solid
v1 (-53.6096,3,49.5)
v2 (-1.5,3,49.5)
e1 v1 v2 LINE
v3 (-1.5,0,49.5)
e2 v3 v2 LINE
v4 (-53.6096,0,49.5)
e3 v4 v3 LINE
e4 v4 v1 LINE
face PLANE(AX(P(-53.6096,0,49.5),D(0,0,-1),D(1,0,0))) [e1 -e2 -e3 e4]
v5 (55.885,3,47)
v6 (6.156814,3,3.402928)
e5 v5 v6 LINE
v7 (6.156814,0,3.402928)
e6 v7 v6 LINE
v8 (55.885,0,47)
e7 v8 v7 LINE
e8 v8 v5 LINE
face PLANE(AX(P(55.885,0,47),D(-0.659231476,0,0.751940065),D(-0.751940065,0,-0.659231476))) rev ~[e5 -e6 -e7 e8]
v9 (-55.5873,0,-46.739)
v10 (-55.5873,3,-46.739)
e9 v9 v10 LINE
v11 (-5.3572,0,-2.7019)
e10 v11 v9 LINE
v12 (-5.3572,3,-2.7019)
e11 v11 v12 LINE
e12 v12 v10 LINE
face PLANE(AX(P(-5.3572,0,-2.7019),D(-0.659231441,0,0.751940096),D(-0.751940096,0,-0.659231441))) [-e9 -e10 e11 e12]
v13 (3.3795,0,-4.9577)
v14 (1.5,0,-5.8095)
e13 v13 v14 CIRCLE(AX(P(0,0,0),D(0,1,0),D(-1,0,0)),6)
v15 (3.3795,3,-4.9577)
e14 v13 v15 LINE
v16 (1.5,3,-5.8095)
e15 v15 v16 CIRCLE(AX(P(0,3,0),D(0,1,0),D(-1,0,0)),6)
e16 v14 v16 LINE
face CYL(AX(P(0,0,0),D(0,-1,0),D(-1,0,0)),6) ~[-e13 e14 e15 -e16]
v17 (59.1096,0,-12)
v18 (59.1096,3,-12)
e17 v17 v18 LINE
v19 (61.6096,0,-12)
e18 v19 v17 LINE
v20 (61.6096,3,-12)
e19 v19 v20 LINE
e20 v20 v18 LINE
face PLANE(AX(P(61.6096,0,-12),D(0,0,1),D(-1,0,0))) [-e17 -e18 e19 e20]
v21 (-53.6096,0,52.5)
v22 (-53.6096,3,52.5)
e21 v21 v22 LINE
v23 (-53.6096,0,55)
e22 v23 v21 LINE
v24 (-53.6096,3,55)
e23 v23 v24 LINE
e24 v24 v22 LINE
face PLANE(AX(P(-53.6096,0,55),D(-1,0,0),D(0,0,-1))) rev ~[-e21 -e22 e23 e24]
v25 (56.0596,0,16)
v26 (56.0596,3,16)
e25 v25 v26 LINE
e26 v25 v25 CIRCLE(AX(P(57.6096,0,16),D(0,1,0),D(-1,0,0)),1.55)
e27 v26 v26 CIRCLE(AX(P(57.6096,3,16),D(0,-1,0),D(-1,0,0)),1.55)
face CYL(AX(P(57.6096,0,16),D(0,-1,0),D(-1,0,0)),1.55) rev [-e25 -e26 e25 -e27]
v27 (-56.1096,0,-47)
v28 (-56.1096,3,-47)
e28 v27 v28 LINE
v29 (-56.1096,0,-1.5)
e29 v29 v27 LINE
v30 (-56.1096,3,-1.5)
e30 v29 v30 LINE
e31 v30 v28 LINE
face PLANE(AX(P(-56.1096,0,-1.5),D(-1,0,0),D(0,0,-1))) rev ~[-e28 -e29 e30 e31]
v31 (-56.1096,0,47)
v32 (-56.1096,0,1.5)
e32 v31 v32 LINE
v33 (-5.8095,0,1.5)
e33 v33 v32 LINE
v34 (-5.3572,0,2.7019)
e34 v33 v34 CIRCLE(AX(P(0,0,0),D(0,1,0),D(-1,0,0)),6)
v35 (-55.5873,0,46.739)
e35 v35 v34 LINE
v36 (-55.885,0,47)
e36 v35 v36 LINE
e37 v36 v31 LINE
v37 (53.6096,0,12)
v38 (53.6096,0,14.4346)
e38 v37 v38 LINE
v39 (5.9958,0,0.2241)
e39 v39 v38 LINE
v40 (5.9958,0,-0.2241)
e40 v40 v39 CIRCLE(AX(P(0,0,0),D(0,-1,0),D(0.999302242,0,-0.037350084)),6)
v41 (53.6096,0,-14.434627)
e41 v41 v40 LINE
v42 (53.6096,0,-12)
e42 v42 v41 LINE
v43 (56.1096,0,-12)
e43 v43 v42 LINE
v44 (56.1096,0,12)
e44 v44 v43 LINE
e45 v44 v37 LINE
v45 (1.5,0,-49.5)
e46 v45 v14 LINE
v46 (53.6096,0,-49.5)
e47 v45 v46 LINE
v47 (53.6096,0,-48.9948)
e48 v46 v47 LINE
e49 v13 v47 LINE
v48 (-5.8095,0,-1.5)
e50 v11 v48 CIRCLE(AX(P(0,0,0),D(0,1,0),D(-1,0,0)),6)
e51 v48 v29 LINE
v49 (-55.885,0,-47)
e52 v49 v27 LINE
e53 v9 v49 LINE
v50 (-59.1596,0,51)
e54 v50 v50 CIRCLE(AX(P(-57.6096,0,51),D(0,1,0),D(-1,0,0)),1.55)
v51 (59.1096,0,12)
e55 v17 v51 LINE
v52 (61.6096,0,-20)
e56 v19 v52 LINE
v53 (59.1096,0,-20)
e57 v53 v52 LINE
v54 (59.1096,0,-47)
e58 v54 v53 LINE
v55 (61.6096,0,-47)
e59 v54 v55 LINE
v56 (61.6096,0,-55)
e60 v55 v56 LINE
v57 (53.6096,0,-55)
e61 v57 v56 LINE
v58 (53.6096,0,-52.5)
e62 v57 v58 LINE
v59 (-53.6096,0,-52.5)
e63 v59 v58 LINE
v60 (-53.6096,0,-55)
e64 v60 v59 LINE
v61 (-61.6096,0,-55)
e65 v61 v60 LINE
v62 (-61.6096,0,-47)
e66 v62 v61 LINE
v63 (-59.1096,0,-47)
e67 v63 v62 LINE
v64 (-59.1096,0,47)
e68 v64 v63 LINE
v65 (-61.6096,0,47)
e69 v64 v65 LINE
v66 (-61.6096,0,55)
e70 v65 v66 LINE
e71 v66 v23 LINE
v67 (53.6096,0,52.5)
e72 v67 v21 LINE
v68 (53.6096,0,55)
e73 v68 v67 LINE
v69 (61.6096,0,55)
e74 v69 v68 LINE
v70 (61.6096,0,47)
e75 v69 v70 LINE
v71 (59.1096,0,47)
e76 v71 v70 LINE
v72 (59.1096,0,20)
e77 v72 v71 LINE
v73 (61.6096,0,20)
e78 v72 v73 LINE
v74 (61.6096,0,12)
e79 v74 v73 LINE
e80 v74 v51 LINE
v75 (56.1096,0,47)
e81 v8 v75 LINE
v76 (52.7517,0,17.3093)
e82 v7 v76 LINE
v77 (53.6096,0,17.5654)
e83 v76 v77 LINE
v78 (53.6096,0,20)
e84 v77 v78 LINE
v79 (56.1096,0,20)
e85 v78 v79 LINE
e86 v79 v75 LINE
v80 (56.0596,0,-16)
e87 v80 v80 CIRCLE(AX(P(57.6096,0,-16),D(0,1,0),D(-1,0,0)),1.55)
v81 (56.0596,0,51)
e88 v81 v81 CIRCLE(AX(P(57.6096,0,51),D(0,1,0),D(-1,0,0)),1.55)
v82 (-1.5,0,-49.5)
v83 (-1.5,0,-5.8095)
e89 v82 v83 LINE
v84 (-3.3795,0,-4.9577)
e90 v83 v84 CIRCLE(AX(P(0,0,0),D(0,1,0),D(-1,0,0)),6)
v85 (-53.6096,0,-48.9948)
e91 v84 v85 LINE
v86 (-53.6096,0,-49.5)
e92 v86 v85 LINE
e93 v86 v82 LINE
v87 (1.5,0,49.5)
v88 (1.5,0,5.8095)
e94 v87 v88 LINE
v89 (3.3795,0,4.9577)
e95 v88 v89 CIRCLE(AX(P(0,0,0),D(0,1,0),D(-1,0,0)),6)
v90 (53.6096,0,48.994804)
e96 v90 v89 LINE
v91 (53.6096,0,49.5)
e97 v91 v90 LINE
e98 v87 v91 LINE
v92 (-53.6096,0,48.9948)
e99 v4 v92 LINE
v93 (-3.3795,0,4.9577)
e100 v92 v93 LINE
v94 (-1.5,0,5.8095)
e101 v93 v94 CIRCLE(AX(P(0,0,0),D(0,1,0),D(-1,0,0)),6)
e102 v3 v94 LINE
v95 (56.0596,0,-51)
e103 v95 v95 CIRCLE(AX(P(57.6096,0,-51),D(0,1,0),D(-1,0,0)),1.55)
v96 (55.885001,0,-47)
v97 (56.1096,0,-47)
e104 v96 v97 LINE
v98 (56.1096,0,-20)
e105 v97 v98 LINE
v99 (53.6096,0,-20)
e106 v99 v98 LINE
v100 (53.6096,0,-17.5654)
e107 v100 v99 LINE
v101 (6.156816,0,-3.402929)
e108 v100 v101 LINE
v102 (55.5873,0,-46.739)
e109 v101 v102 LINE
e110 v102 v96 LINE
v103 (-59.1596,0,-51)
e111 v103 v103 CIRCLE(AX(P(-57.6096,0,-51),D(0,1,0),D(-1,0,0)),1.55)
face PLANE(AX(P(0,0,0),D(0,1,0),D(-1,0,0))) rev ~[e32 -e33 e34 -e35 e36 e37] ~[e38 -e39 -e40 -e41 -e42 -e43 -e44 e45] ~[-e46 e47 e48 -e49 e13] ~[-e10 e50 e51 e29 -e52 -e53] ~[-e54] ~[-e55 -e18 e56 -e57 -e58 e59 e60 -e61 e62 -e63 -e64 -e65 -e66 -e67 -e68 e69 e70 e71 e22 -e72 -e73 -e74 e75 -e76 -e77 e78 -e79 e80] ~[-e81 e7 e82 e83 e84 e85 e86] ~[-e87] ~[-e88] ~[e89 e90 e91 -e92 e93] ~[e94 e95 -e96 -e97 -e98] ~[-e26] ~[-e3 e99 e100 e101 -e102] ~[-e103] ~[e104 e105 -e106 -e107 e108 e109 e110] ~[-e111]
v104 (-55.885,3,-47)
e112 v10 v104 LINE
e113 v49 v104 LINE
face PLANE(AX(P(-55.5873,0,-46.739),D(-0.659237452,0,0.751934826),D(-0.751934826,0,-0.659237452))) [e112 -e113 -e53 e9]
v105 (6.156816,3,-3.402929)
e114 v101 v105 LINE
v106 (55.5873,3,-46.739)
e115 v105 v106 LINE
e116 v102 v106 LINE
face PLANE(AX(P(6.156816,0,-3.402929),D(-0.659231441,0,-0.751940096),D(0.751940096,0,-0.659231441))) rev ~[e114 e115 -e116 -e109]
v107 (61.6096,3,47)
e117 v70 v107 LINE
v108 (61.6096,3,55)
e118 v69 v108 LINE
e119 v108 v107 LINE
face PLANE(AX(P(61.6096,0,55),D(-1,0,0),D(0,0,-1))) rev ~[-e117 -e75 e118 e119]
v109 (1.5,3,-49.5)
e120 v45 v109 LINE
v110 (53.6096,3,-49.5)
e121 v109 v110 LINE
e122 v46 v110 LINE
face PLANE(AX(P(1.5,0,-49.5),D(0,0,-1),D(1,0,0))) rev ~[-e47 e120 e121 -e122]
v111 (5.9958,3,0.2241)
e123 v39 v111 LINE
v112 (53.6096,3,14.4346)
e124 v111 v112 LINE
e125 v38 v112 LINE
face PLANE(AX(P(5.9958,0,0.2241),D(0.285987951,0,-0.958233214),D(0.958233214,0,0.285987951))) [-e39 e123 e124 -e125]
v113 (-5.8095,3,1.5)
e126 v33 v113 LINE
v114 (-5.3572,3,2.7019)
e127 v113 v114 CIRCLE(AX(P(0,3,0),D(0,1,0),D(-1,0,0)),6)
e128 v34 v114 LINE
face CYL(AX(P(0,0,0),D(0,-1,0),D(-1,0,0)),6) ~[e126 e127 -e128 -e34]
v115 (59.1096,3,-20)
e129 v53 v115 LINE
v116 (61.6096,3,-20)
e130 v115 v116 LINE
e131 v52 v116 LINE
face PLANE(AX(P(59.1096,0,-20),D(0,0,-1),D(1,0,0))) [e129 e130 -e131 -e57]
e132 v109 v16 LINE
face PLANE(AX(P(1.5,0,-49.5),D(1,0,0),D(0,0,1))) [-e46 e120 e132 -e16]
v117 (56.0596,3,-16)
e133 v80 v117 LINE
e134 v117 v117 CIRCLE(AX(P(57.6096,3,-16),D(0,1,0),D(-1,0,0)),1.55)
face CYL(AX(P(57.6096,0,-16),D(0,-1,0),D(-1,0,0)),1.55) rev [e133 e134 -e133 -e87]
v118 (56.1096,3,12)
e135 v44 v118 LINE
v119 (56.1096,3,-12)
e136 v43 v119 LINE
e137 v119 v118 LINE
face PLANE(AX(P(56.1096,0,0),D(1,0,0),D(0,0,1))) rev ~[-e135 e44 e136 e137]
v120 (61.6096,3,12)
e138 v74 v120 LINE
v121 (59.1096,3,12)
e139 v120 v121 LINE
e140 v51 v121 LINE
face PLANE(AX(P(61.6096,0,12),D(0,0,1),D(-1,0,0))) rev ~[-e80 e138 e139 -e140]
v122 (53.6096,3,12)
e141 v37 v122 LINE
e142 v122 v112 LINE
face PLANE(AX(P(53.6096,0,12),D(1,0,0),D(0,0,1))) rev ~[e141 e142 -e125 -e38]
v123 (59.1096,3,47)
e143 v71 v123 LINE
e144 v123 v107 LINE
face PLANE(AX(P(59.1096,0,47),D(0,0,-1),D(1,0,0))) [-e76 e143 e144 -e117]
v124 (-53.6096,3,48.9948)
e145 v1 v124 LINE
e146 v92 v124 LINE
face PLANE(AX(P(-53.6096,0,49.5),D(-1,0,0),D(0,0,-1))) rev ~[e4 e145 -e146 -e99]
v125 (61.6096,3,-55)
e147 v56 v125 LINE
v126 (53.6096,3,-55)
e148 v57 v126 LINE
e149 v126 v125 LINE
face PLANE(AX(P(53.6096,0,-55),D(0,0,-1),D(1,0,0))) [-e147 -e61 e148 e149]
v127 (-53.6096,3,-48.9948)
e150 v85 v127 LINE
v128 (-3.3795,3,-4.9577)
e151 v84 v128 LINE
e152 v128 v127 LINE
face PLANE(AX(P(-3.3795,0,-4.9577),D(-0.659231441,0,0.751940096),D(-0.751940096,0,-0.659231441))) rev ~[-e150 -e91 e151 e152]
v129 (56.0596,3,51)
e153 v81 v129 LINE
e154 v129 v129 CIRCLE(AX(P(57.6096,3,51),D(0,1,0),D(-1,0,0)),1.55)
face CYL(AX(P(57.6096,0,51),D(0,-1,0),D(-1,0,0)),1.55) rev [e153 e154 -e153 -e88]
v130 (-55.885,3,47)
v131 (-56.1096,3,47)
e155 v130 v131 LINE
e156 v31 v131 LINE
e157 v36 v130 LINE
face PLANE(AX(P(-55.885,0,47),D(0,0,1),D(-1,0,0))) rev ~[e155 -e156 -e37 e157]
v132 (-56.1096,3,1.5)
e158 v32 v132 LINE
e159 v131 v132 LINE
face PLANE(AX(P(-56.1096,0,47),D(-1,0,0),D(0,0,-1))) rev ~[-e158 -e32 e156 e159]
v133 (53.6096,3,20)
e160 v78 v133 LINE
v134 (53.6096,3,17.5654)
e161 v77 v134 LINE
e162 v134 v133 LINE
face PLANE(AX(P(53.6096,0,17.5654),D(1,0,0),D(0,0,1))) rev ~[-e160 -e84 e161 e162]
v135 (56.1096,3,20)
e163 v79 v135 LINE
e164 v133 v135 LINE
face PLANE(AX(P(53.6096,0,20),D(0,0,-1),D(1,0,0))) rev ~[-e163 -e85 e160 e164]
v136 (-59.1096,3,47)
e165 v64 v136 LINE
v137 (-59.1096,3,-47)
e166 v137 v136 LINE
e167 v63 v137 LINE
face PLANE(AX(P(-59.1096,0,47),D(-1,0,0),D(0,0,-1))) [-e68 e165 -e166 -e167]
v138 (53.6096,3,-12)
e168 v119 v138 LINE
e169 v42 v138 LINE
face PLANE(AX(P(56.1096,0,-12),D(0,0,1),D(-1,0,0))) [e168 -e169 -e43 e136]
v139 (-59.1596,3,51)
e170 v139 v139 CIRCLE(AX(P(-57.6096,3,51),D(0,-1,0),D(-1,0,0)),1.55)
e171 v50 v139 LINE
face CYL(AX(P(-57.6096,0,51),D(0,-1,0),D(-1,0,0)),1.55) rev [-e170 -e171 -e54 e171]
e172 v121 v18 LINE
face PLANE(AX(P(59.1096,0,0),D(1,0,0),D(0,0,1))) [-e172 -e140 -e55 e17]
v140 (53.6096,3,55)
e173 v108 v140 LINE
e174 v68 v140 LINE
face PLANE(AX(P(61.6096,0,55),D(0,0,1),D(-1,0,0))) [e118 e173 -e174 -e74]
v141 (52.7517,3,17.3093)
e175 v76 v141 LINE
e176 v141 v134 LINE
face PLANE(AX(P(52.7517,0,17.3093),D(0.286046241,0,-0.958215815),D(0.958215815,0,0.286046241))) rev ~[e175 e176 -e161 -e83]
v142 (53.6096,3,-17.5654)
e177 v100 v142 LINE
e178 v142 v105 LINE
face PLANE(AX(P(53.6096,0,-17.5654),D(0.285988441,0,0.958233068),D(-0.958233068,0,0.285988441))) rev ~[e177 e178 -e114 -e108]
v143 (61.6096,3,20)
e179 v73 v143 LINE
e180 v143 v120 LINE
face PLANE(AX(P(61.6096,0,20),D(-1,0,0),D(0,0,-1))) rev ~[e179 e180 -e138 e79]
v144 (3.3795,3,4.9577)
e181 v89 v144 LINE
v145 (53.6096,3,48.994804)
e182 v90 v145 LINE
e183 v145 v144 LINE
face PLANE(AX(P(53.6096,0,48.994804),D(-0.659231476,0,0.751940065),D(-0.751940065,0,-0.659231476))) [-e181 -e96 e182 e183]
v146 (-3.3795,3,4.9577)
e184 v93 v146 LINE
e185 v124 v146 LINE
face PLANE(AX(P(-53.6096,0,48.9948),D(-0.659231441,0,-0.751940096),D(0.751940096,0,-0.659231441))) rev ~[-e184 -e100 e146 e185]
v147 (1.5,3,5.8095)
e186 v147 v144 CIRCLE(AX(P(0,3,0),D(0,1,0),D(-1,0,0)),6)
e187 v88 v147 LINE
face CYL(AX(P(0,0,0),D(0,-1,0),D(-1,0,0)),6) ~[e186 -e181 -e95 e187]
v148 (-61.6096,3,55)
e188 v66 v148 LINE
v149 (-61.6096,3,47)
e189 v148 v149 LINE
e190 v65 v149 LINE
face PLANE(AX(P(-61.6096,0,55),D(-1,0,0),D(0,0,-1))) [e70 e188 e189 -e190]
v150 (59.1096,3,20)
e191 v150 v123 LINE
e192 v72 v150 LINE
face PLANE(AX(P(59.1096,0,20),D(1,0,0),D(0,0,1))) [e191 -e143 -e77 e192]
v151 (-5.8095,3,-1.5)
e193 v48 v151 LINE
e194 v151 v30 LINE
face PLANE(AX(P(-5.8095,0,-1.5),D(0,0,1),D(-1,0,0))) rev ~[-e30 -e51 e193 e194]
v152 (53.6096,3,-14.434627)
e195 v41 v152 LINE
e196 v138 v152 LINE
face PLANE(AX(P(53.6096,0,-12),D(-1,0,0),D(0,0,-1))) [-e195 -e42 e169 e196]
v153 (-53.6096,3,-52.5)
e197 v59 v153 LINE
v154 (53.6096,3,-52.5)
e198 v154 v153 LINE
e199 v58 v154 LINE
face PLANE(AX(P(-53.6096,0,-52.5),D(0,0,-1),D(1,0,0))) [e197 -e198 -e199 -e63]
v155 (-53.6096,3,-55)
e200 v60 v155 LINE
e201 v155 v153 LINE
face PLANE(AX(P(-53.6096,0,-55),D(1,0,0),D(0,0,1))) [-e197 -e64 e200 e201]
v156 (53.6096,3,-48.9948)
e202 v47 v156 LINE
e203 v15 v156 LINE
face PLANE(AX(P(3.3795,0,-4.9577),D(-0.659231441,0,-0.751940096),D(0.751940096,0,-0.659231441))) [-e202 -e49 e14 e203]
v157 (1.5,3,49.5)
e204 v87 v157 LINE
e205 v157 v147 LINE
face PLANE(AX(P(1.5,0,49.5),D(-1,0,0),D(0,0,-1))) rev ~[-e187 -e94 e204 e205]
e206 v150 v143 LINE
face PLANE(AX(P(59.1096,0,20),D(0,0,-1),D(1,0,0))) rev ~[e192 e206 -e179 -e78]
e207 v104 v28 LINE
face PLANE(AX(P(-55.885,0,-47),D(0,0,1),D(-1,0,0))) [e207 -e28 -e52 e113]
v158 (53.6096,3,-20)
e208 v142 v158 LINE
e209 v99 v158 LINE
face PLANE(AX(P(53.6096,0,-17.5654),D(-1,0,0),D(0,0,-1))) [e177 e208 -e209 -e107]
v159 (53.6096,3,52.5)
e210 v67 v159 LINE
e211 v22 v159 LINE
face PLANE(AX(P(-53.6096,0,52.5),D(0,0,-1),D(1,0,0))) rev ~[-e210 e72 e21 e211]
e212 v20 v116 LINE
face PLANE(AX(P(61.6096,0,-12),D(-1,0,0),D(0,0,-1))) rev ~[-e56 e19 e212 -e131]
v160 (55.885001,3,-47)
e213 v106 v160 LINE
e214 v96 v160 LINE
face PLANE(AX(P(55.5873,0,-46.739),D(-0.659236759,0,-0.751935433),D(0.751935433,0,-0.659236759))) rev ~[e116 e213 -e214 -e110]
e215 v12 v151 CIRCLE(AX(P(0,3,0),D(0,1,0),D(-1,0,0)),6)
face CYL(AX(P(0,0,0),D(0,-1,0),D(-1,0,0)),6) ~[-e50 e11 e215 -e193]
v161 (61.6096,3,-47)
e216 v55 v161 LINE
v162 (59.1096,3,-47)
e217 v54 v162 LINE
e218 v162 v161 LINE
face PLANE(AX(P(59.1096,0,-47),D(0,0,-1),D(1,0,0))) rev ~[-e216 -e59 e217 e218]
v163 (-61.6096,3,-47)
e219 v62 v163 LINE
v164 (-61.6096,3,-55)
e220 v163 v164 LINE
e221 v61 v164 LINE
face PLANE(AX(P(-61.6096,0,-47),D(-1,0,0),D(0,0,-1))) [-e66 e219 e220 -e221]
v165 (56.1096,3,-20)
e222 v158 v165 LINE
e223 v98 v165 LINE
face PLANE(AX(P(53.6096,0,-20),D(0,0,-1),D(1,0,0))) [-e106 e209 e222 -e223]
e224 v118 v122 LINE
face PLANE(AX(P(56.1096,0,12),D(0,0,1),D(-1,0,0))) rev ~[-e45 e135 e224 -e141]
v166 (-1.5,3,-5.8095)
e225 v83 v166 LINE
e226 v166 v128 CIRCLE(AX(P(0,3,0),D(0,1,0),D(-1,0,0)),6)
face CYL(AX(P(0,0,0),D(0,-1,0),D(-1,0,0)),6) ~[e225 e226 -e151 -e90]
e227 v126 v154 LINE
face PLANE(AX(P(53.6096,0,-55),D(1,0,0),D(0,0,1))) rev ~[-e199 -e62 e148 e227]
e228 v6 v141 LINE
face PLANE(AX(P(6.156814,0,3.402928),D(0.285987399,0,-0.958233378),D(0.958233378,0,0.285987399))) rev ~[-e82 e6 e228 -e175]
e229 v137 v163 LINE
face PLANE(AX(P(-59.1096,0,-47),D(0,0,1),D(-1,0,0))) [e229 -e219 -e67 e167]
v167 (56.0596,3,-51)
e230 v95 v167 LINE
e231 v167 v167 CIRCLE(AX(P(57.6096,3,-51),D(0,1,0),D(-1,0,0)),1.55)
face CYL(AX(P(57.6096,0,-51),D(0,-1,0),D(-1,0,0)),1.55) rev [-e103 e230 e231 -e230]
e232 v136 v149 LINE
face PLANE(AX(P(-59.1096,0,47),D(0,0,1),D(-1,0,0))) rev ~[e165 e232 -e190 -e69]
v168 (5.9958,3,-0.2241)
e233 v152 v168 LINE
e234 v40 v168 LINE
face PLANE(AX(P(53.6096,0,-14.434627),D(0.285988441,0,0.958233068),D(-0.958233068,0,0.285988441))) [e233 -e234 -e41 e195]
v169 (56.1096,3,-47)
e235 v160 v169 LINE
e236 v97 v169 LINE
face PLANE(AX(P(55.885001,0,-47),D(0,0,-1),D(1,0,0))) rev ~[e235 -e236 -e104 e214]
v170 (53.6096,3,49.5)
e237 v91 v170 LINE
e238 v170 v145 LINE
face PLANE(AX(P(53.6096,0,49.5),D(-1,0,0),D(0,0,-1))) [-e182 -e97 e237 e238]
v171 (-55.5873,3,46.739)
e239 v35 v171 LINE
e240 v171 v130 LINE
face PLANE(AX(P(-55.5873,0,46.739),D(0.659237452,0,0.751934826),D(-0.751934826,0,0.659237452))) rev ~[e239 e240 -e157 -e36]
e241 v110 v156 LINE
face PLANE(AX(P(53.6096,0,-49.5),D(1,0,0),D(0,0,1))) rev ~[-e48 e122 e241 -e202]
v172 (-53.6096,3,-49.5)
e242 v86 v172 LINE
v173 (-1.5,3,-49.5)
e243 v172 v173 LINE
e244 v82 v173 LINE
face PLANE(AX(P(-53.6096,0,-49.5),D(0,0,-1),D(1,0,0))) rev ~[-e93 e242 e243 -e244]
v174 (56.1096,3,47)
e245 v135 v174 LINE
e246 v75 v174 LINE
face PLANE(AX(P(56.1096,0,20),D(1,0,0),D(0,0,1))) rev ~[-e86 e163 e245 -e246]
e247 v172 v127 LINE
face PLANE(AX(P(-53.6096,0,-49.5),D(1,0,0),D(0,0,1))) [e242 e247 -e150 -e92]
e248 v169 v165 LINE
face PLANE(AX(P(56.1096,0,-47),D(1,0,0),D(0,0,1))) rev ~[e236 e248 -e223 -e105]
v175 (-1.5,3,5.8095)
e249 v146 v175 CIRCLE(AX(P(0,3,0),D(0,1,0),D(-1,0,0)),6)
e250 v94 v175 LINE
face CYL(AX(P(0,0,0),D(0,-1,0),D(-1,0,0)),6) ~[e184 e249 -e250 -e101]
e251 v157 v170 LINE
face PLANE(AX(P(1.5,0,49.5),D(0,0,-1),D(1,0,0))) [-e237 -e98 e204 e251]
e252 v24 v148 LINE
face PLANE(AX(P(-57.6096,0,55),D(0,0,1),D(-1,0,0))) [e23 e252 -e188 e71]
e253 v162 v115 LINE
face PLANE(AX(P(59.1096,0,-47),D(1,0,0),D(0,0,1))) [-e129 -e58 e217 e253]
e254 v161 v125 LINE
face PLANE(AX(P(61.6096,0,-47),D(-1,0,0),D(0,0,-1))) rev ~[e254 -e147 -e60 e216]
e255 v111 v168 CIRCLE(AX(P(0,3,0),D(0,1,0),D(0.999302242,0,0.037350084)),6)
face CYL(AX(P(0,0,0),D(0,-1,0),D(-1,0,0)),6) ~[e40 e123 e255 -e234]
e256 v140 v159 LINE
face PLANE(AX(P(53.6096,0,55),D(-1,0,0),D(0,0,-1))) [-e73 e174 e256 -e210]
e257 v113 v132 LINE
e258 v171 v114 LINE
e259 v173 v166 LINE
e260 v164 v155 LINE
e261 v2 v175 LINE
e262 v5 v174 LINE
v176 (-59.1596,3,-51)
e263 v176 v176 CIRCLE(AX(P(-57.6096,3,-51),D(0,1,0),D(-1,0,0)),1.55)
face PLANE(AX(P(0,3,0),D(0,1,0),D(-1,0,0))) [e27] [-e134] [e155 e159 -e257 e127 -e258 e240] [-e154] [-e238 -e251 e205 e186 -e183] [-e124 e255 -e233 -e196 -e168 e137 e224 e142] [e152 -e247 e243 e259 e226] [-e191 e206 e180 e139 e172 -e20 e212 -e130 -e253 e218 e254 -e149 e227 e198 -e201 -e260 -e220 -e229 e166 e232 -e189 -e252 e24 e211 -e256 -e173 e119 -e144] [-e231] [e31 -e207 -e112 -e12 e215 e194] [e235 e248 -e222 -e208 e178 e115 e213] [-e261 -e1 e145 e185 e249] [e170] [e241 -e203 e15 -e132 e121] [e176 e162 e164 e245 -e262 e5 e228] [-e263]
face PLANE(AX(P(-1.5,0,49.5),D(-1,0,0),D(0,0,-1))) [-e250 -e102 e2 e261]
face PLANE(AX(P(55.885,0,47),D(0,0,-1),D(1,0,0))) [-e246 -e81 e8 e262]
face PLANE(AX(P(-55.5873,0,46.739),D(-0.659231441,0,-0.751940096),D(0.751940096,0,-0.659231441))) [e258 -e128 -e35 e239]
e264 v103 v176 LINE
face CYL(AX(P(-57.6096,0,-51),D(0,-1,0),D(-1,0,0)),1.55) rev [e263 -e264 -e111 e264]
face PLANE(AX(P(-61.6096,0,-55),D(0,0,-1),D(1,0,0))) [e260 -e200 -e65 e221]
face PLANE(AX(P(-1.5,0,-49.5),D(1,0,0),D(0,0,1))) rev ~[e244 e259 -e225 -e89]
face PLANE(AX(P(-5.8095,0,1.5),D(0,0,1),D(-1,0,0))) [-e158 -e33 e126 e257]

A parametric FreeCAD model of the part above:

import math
import FreeCAD as App
import Part
import Sketcher
Q = App.Units.Quantity

doc = App.newDocument("Part")
body = doc.addObject("PartDesign::Body", "Body")

# Sketch on XZ plane
sketch1 = body.newObject("Sketcher::SketchObject", "Sketch")
sketch1.AttachmentSupport = (doc.getObject("XZ_Plane"), [""])
sketch1.MapMode = "FlatFace"
sketch1.addGeometry([
    Part.LineSegment(App.Vector(-61.61, 55, 0), App.Vector(-53.61, 55, 0)),  # 0
    Part.LineSegment(App.Vector(-53.61, 55, 0), App.Vector(-53.61, 52.5, 0)),  # 1
    Part.LineSegment(App.Vector(-53.61, 52.5, 0), App.Vector(53.61, 52.5, 0)),  # 2
    Part.LineSegment(App.Vector(53.61, 52.5, 0), App.Vector(53.61, 55, 0)),  # 3
    Part.LineSegment(App.Vector(53.61, 55, 0), App.Vector(61.61, 55, 0)),  # 4
    Part.LineSegment(App.Vector(61.61, 55, 0), App.Vector(61.61, 47, 0)),  # 5
    Part.LineSegment(App.Vector(61.61, 47, 0), App.Vector(59.11, 47, 0)),  # 6
    Part.LineSegment(App.Vector(59.11, 47, 0), App.Vector(59.11, 20, 0)),  # 7
    Part.LineSegment(App.Vector(59.11, 20, 0), App.Vector(61.61, 20, 0)),  # 8
    Part.LineSegment(App.Vector(61.61, 20, 0), App.Vector(61.61, 12, 0)),  # 9
    Part.LineSegment(App.Vector(61.61, 12, 0), App.Vector(59.11, 12, 0)),  # 10
    Part.LineSegment(App.Vector(59.11, 12, 0), App.Vector(59.11, -12, 0)),  # 11
    Part.LineSegment(App.Vector(59.11, -12, 0), App.Vector(61.61, -12, 0)),  # 12
    Part.LineSegment(App.Vector(61.61, -12, 0), App.Vector(61.61, -20, 0)),  # 13
    Part.LineSegment(App.Vector(61.61, -20, 0), App.Vector(59.11, -20, 0)),  # 14
    Part.LineSegment(App.Vector(59.11, -20, 0), App.Vector(59.11, -47, 0)),  # 15
    Part.LineSegment(App.Vector(59.11, -47, 0), App.Vector(61.61, -47, 0)),  # 16
    Part.LineSegment(App.Vector(61.61, -47, 0), App.Vector(61.61, -55, 0)),  # 17
    Part.LineSegment(App.Vector(61.61, -55, 0), App.Vector(53.61, -55, 0)),  # 18
    Part.LineSegment(App.Vector(53.61, -55, 0), App.Vector(53.61, -52.5, 0)),  # 19
    Part.LineSegment(App.Vector(53.61, -52.5, 0), App.Vector(-53.61, -52.5, 0)),  # 20
    Part.LineSegment(App.Vector(-53.61, -52.5, 0), App.Vector(-53.61, -55, 0)),  # 21
    Part.LineSegment(App.Vector(-53.61, -55, 0), App.Vector(-61.61, -55, 0)),  # 22
    Part.LineSegment(App.Vector(-61.61, -55, 0), App.Vector(-61.61, -47, 0)),  # 23
    Part.LineSegment(App.Vector(-61.61, -47, 0), App.Vector(-59.11, -47, 0)),  # 24
    Part.LineSegment(App.Vector(-59.11, -47, 0), App.Vector(-59.11, 47, 0)),  # 25
    Part.LineSegment(App.Vector(-59.11, 47, 0), App.Vector(-61.61, 47, 0)),  # 26
    Part.LineSegment(App.Vector(-61.61, 47, 0), App.Vector(-61.61, 55, 0)),  # 27
    Part.Circle(App.Vector(-57.61, 51, 0), App.Vector(0, 0, 1), 1.55),  # 28
    Part.LineSegment(App.Vector(-55.88, 47, 0), App.Vector(-56.11, 47, 0)),  # 29
    Part.LineSegment(App.Vector(-56.11, 47, 0), App.Vector(-56.11, 1.5, 0)),  # 30
    Part.LineSegment(App.Vector(-56.11, 1.5, 0), App.Vector(-5.81, 1.5, 0)),  # 31
    Part.ArcOfCircle(Part.Circle(App.Vector(0, 0, 0), App.Vector(0, 0, 1), 6), math.radians(153.24), math.radians(165.52)),  # 32
    Part.LineSegment(App.Vector(-5.36, 2.7, 0), App.Vector(-55.59, 46.74, 0)),  # 33
    Part.LineSegment(App.Vector(-55.59, 46.74, 0), App.Vector(-55.88, 47, 0)),  # 34
    Part.LineSegment(App.Vector(-53.61, 49.5, 0), App.Vector(-53.61, 48.99, 0)),  # 35
    Part.LineSegment(App.Vector(-53.61, 48.99, 0), App.Vector(-3.38, 4.96, 0)),  # 36
    Part.ArcOfCircle(Part.Circle(App.Vector(0, 0, 0), App.Vector(0, 0, 1), 6), math.radians(104.48), math.radians(124.28)),  # 37
    Part.LineSegment(App.Vector(-1.5, 5.81, 0), App.Vector(-1.5, 49.5, 0)),  # 38
    Part.LineSegment(App.Vector(-1.5, 49.5, 0), App.Vector(-53.61, 49.5, 0)),  # 39
    Part.LineSegment(App.Vector(-53.61, -48.99, 0), App.Vector(-53.61, -49.5, 0)),  # 40
    Part.LineSegment(App.Vector(-53.61, -49.5, 0), App.Vector(-1.5, -49.5, 0)),  # 41
    Part.LineSegment(App.Vector(-1.5, -49.5, 0), App.Vector(-1.5, -5.81, 0)),  # 42
    Part.ArcOfCircle(Part.Circle(App.Vector(0, 0, 0), App.Vector(0, 0, 1), 6), math.radians(-124.28), math.radians(-104.48)),  # 43
    Part.LineSegment(App.Vector(-3.38, -4.96, 0), App.Vector(-53.61, -48.99, 0)),  # 44
    Part.LineSegment(App.Vector(-56.11, -47, 0), App.Vector(-55.88, -47, 0)),  # 45
    Part.LineSegment(App.Vector(-55.88, -47, 0), App.Vector(-55.59, -46.74, 0)),  # 46
    Part.LineSegment(App.Vector(-55.59, -46.74, 0), App.Vector(-5.36, -2.7, 0)),  # 47
    Part.ArcOfCircle(Part.Circle(App.Vector(0, 0, 0), App.Vector(0, 0, 1), 6), math.radians(-165.52), math.radians(-153.24)),  # 48
    Part.LineSegment(App.Vector(-5.81, -1.5, 0), App.Vector(-56.11, -1.5, 0)),  # 49
    Part.LineSegment(App.Vector(-56.11, -1.5, 0), App.Vector(-56.11, -47, 0)),  # 50
    Part.Circle(App.Vector(-57.61, -51, 0), App.Vector(0, 0, 1), 1.55),  # 51
    Part.LineSegment(App.Vector(53.61, 49.5, 0), App.Vector(1.5, 49.5, 0)),  # 52
    Part.LineSegment(App.Vector(1.5, 49.5, 0), App.Vector(1.5, 5.81, 0)),  # 53
    Part.ArcOfCircle(Part.Circle(App.Vector(0, 0, 0), App.Vector(0, 0, 1), 6), math.radians(55.72), math.radians(75.52)),  # 54
    Part.LineSegment(App.Vector(3.38, 4.96, 0), App.Vector(53.61, 48.99, 0)),  # 55
    Part.LineSegment(App.Vector(53.61, 48.99, 0), App.Vector(53.61, 49.5, 0)),  # 56
    Part.Circle(App.Vector(57.61, 51, 0), App.Vector(0, 0, 1), 1.55),  # 57
    Part.LineSegment(App.Vector(56.11, 47, 0), App.Vector(55.88, 47, 0)),  # 58
    Part.LineSegment(App.Vector(55.88, 47, 0), App.Vector(6.16, 3.4, 0)),  # 59
    Part.LineSegment(App.Vector(6.16, 3.4, 0), App.Vector(52.75, 17.31, 0)),  # 60
    Part.LineSegment(App.Vector(52.75, 17.31, 0), App.Vector(53.61, 17.57, 0)),  # 61
    Part.LineSegment(App.Vector(53.61, 17.57, 0), App.Vector(53.61, 20, 0)),  # 62
    Part.LineSegment(App.Vector(53.61, 20, 0), App.Vector(56.11, 20, 0)),  # 63
    Part.LineSegment(App.Vector(56.11, 20, 0), App.Vector(56.11, 47, 0)),  # 64
    Part.LineSegment(App.Vector(1.5, -49.5, 0), App.Vector(53.61, -49.5, 0)),  # 65
    Part.LineSegment(App.Vector(53.61, -49.5, 0), App.Vector(53.61, -48.99, 0)),  # 66
    Part.LineSegment(App.Vector(53.61, -48.99, 0), App.Vector(3.38, -4.96, 0)),  # 67
    Part.ArcOfCircle(Part.Circle(App.Vector(0, 0, 0), App.Vector(0, 0, 1), 6), math.radians(-75.52), math.radians(-55.72)),  # 68
    Part.LineSegment(App.Vector(1.5, -5.81, 0), App.Vector(1.5, -49.5, 0)),  # 69
    Part.Circle(App.Vector(57.61, 16, 0), App.Vector(0, 0, 1), 1.55),  # 70
    Part.LineSegment(App.Vector(55.89, -47, 0), App.Vector(56.11, -47, 0)),  # 71
    Part.LineSegment(App.Vector(56.11, -47, 0), App.Vector(56.11, -20, 0)),  # 72
    Part.LineSegment(App.Vector(56.11, -20, 0), App.Vector(53.61, -20, 0)),  # 73
    Part.LineSegment(App.Vector(53.61, -20, 0), App.Vector(53.61, -17.57, 0)),  # 74
    Part.LineSegment(App.Vector(53.61, -17.57, 0), App.Vector(6.16, -3.4, 0)),  # 75
    Part.LineSegment(App.Vector(6.16, -3.4, 0), App.Vector(55.59, -46.74, 0)),  # 76
    Part.LineSegment(App.Vector(55.59, -46.74, 0), App.Vector(55.89, -47, 0)),  # 77
    Part.Circle(App.Vector(57.61, -51, 0), App.Vector(0, 0, 1), 1.55),  # 78
    Part.ArcOfCircle(Part.Circle(App.Vector(0, 0, 0), App.Vector(0, 0, 1), 6), math.radians(-2.14), math.radians(2.14)),  # 79
    Part.LineSegment(App.Vector(6, -0.22, 0), App.Vector(53.61, -14.43, 0)),  # 80
    Part.LineSegment(App.Vector(53.61, -14.43, 0), App.Vector(53.61, -12, 0)),  # 81
    Part.LineSegment(App.Vector(53.61, -12, 0), App.Vector(56.11, -12, 0)),  # 82
    Part.LineSegment(App.Vector(56.11, -12, 0), App.Vector(56.11, 12, 0)),  # 83
    Part.LineSegment(App.Vector(56.11, 12, 0), App.Vector(53.61, 12, 0)),  # 84
    Part.LineSegment(App.Vector(53.61, 12, 0), App.Vector(53.61, 14.43, 0)),  # 85
    Part.LineSegment(App.Vector(53.61, 14.43, 0), App.Vector(6, 0.22, 0)),  # 86
    Part.Circle(App.Vector(57.61, -16, 0), App.Vector(0, 0, 1), 1.55),  # 87
], False)
sketch1.addConstraint([
    Sketcher.Constraint("Coincident", 0, 2, 1, 1),
    Sketcher.Constraint("Coincident", 1, 2, 2, 1),
    Sketcher.Constraint("Coincident", 2, 2, 3, 1),
    Sketcher.Constraint("Coincident", 3, 2, 4, 1),
    Sketcher.Constraint("Coincident", 4, 2, 5, 1),
    Sketcher.Constraint("Coincident", 5, 2, 6, 1),
    Sketcher.Constraint("Coincident", 6, 2, 7, 1),
    Sketcher.Constraint("Coincident", 7, 2, 8, 1),
    Sketcher.Constraint("Coincident", 8, 2, 9, 1),
    Sketcher.Constraint("Coincident", 9, 2, 10, 1),
    Sketcher.Constraint("Coincident", 10, 2, 11, 1),
    Sketcher.Constraint("Coincident", 11, 2, 12, 1),
    Sketcher.Constraint("Coincident", 12, 2, 13, 1),
    Sketcher.Constraint("Coincident", 13, 2, 14, 1),
    Sketcher.Constraint("Coincident", 14, 2, 15, 1),
    Sketcher.Constraint("Coincident", 15, 2, 16, 1),
    Sketcher.Constraint("Coincident", 16, 2, 17, 1),
    Sketcher.Constraint("Coincident", 17, 2, 18, 1),
    Sketcher.Constraint("Coincident", 18, 2, 19, 1),
    Sketcher.Constraint("Coincident", 19, 2, 20, 1),
    Sketcher.Constraint("Coincident", 20, 2, 21, 1),
    Sketcher.Constraint("Coincident", 21, 2, 22, 1),
    Sketcher.Constraint("Coincident", 22, 2, 23, 1),
    Sketcher.Constraint("Coincident", 23, 2, 24, 1),
    Sketcher.Constraint("Coincident", 24, 2, 25, 1),
    Sketcher.Constraint("Coincident", 25, 2, 26, 1),
    Sketcher.Constraint("Coincident", 26, 2, 27, 1),
    Sketcher.Constraint("Coincident", 27, 2, 0, 1),
    Sketcher.Constraint("Coincident", 29, 2, 30, 1),
    Sketcher.Constraint("Coincident", 30, 2, 31, 1),
    Sketcher.Constraint("Coincident", 31, 2, 32, 2),
    Sketcher.Constraint("Coincident", 32, 1, 33, 1),
    Sketcher.Constraint("Coincident", 33, 2, 34, 1),
    Sketcher.Constraint("Coincident", 34, 2, 29, 1),
    Sketcher.Constraint("Coincident", 35, 2, 36, 1),
    Sketcher.Constraint("Coincident", 36, 2, 37, 2),
    Sketcher.Constraint("Coincident", 37, 1, 38, 1),
    Sketcher.Constraint("Coincident", 38, 2, 39, 1),
    Sketcher.Constraint("Coincident", 39, 2, 35, 1),
    Sketcher.Constraint("Coincident", 40, 2, 41, 1),
    Sketcher.Constraint("Coincident", 41, 2, 42, 1),
    Sketcher.Constraint("Coincident", 42, 2, 43, 2),
    Sketcher.Constraint("Coincident", 43, 1, 44, 1),
    Sketcher.Constraint("Coincident", 44, 2, 40, 1),
    Sketcher.Constraint("Coincident", 45, 2, 46, 1),
    Sketcher.Constraint("Coincident", 46, 2, 47, 1),
    Sketcher.Constraint("Coincident", 47, 2, 48, 2),
    Sketcher.Constraint("Coincident", 48, 1, 49, 1),
    Sketcher.Constraint("Coincident", 49, 2, 50, 1),
    Sketcher.Constraint("Coincident", 50, 2, 45, 1),
    Sketcher.Constraint("Coincident", 52, 2, 53, 1),
    Sketcher.Constraint("Coincident", 53, 2, 54, 2),
    Sketcher.Constraint("Coincident", 54, 1, 55, 1),
    Sketcher.Constraint("Coincident", 55, 2, 56, 1),
    Sketcher.Constraint("Coincident", 56, 2, 52, 1),
    Sketcher.Constraint("Coincident", 58, 2, 59, 1),
    Sketcher.Constraint("Coincident", 59, 2, 60, 1),
    Sketcher.Constraint("Coincident", 60, 2, 61, 1),
    Sketcher.Constraint("Coincident", 61, 2, 62, 1),
    Sketcher.Constraint("Coincident", 62, 2, 63, 1),
    Sketcher.Constraint("Coincident", 63, 2, 64, 1),
    Sketcher.Constraint("Coincident", 64, 2, 58, 1),
    Sketcher.Constraint("Coincident", 65, 2, 66, 1),
    Sketcher.Constraint("Coincident", 66, 2, 67, 1),
    Sketcher.Constraint("Coincident", 67, 2, 68, 2),
    Sketcher.Constraint("Coincident", 68, 1, 69, 1),
    Sketcher.Constraint("Coincident", 69, 2, 65, 1),
    Sketcher.Constraint("Coincident", 71, 2, 72, 1),
    Sketcher.Constraint("Coincident", 72, 2, 73, 1),
    Sketcher.Constraint("Coincident", 73, 2, 74, 1),
    Sketcher.Constraint("Coincident", 74, 2, 75, 1),
    Sketcher.Constraint("Coincident", 75, 2, 76, 1),
    Sketcher.Constraint("Coincident", 76, 2, 77, 1),
    Sketcher.Constraint("Coincident", 77, 2, 71, 1),
    Sketcher.Constraint("Coincident", 79, 1, 80, 1),
    Sketcher.Constraint("Coincident", 80, 2, 81, 1),
    Sketcher.Constraint("Coincident", 81, 2, 82, 1),
    Sketcher.Constraint("Coincident", 82, 2, 83, 1),
    Sketcher.Constraint("Coincident", 83, 2, 84, 1),
    Sketcher.Constraint("Coincident", 84, 2, 85, 1),
    Sketcher.Constraint("Coincident", 85, 2, 86, 1),
    Sketcher.Constraint("Coincident", 86, 2, 79, 2),
    Sketcher.Constraint("Horizontal", 0),
    Sketcher.Constraint("Vertical", 1),
    Sketcher.Constraint("Horizontal", 2),
    Sketcher.Constraint("Vertical", 3),
    Sketcher.Constraint("Horizontal", 4),
    Sketcher.Constraint("Vertical", 5),
    Sketcher.Constraint("Horizontal", 6),
    Sketcher.Constraint("Vertical", 7),
    Sketcher.Constraint("Horizontal", 8),
    Sketcher.Constraint("Vertical", 9),
    Sketcher.Constraint("Horizontal", 10),
    Sketcher.Constraint("Vertical", 11),
    Sketcher.Constraint("Horizontal", 12),
    Sketcher.Constraint("Vertical", 13),
    Sketcher.Constraint("Horizontal", 14),
    Sketcher.Constraint("Vertical", 15),
    Sketcher.Constraint("Horizontal", 16),
    Sketcher.Constraint("Vertical", 17),
    Sketcher.Constraint("Horizontal", 18),
    Sketcher.Constraint("Vertical", 19),
    Sketcher.Constraint("Horizontal", 20),
    Sketcher.Constraint("Vertical", 21),
    Sketcher.Constraint("Horizontal", 22),
    Sketcher.Constraint("Vertical", 23),
    Sketcher.Constraint("Horizontal", 24),
    Sketcher.Constraint("Vertical", 25),
    Sketcher.Constraint("Horizontal", 26),
    Sketcher.Constraint("Vertical", 27),
    Sketcher.Constraint("Horizontal", 29),
    Sketcher.Constraint("Vertical", 30),
    Sketcher.Constraint("Horizontal", 31),
    Sketcher.Constraint("Vertical", 35),
    Sketcher.Constraint("Vertical", 38),
    Sketcher.Constraint("Horizontal", 39),
    Sketcher.Constraint("Vertical", 40),
    Sketcher.Constraint("Horizontal", 41),
    Sketcher.Constraint("Vertical", 42),
    Sketcher.Constraint("Horizontal", 45),
    Sketcher.Constraint("Horizontal", 49),
    Sketcher.Constraint("Vertical", 50),
    Sketcher.Constraint("Horizontal", 52),
    Sketcher.Constraint("Vertical", 53),
    Sketcher.Constraint("Vertical", 56),
    Sketcher.Constraint("Horizontal", 58),
    Sketcher.Constraint("Vertical", 62),
    Sketcher.Constraint("Horizontal", 63),
    Sketcher.Constraint("Vertical", 64),
    Sketcher.Constraint("Horizontal", 65),
    Sketcher.Constraint("Vertical", 66),
    Sketcher.Constraint("Vertical", 69),
    Sketcher.Constraint("Horizontal", 71),
    Sketcher.Constraint("Vertical", 72),
    Sketcher.Constraint("Horizontal", 73),
    Sketcher.Constraint("Vertical", 74),
    Sketcher.Constraint("Vertical", 81),
    Sketcher.Constraint("Horizontal", 82),
    Sketcher.Constraint("Vertical", 83),
    Sketcher.Constraint("Horizontal", 84),
    Sketcher.Constraint("Vertical", 85),
    Sketcher.Constraint("Coincident", 32, 3, -1, 1),
    Sketcher.Constraint("Coincident", 37, 3, -1, 1),
    Sketcher.Constraint("Coincident", 43, 3, -1, 1),
    Sketcher.Constraint("Coincident", 48, 3, -1, 1),
    Sketcher.Constraint("Coincident", 54, 3, -1, 1),
    Sketcher.Constraint("Coincident", 68, 3, -1, 1),
    Sketcher.Constraint("Coincident", 79, 3, -1, 1),
    Sketcher.Constraint("Equal", 32, 37),
    Sketcher.Constraint("Equal", 37, 43),
    Sketcher.Constraint("Equal", 43, 48),
    Sketcher.Constraint("Equal", 28, 51),
    Sketcher.Constraint("Equal", 48, 54),
    Sketcher.Constraint("Equal", 51, 57),
    Sketcher.Constraint("Equal", 54, 68),
    Sketcher.Constraint("Equal", 57, 70),
    Sketcher.Constraint("Equal", 70, 78),
    Sketcher.Constraint("Equal", 68, 79),
    Sketcher.Constraint("Equal", 78, 87),
    Sketcher.Constraint("Symmetric", 51, 3, 57, 3, -1, 1),
    Sketcher.Constraint("Symmetric", 28, 3, 78, 3, -1, 1),
    Sketcher.Constraint("Symmetric", 0, 2, 18, 2, -1, 1),
    Sketcher.Constraint("Symmetric", 2, 2, 20, 2, -1, 1),
    Sketcher.Constraint("Symmetric", 4, 2, 22, 2, -1, 1),
    Sketcher.Constraint("Symmetric", 6, 2, 24, 2, -1, 1),
    Sketcher.Constraint("Symmetric", 15, 2, 25, 2, -1, 1),
    Sketcher.Constraint("Symmetric", 41, 2, 52, 2, -1, 1),
    Sketcher.Constraint("Symmetric", 44, 2, 55, 2, -1, 1),
    Sketcher.Constraint("Symmetric", 45, 2, 58, 2, -1, 1),
    Sketcher.Constraint("Symmetric", 39, 2, 65, 2, -1, 1),
    Sketcher.Constraint("Symmetric", 29, 2, 71, 2, -1, 1),
    Sketcher.Constraint("Symmetric", 33, 2, 76, 2, -1, 1),
    Sketcher.Constraint("Symmetric", 28, 3, 57, 3, -2),
    Sketcher.Constraint("Symmetric", 0, 2, 3, 2, -2),
    Sketcher.Constraint("Symmetric", 16, 2, 23, 2, -2),
    Sketcher.Constraint("Symmetric", 38, 2, 52, 2, -2),
    Sketcher.Constraint("Symmetric", 35, 2, 55, 2, -2),
    Sketcher.Constraint("Symmetric", 34, 2, 58, 2, -2),
    Sketcher.Constraint("Symmetric", 46, 2, 76, 2, -2),
    Sketcher.Constraint("Symmetric", 70, 3, 87, 3, -1),
    Sketcher.Constraint("Symmetric", 9, 2, 12, 2, -1),
    Sketcher.Constraint("Symmetric", 30, 2, 49, 2, -1),
    Sketcher.Constraint("Symmetric", 63, 2, 72, 2, -1),
    Sketcher.Constraint("Symmetric", 61, 2, 74, 2, -1),
    Sketcher.Constraint("Symmetric", 59, 2, 75, 2, -1),
    Sketcher.Constraint("Symmetric", 81, 2, 84, 2, -1),
    Sketcher.Constraint("Parallel", 33, 34),
    Sketcher.Constraint("Parallel", 34, 36),
    Sketcher.Constraint("Parallel", 44, 46),
    Sketcher.Constraint("Parallel", 46, 47),
    Sketcher.Constraint("Parallel", 47, 55),
    Sketcher.Constraint("Parallel", 55, 59),
    Sketcher.Constraint("Parallel", 60, 61),
    Sketcher.Constraint("Parallel", 36, 67),
    Sketcher.Constraint("Parallel", 76, 77),
    Sketcher.Constraint("Parallel", 75, 80),
    Sketcher.Constraint("Parallel", 61, 86),
    Sketcher.Constraint("Horizontal", 26, 2, 29, 2),
    Sketcher.Constraint("Horizontal", 8, 2, 62, 2),
    Sketcher.Constraint("Horizontal", 44, 2, 66, 2),
    Sketcher.Constraint("Horizontal", 42, 2, 68, 1),
    Sketcher.Constraint("Horizontal", 14, 2, 72, 2),
    Sketcher.Constraint("Horizontal", 12, 2, 81, 2),
    Sketcher.Constraint("Vertical", 57, 3, 70, 3),
    Sketcher.Constraint("Vertical", 5, 2, 8, 2),
    Sketcher.Constraint("Vertical", 7, 2, 10, 2),
    Sketcher.Constraint("Vertical", 23, 2, 26, 2),
    Sketcher.Constraint("Vertical", 21, 2, 35, 2),
    Sketcher.Constraint("Vertical", 56, 2, 61, 2),
    Sketcher.Constraint("Vertical", 74, 2, 80, 2),
    Sketcher.Constraint("Vertical", 72, 2, 82, 2),
    Sketcher.Constraint("Vertical", 79, 1, 86, 2),
    Sketcher.Constraint("Equal", 26, 63),
    Sketcher.Constraint("Equal", 84, 1),
    Sketcher.Constraint("Equal", 22, 5),
    Sketcher.Constraint("Equal", 5, 9),
    Sketcher.Constraint("Equal", 74, 81),
    Sketcher.Constraint("Equal", 33, 36),
    Sketcher.Constraint("Radius", 32, Q("6 mm")),
    Sketcher.Constraint("Diameter", 28, Q("3.1 mm")),
    Sketcher.Constraint("DistanceX", 0, 1, 0, 2, Q("8 mm")),
    Sketcher.Constraint("DistanceY", -1, 1, 9, 2, Q("12 mm")),
    Sketcher.Constraint("DistanceY", 7, 2, 7, 1, Q("27 mm")),
    Sketcher.Constraint("DistanceX", 6, 2, 6, 1, Q("2.5 mm")),
    Sketcher.Constraint("DistanceX", 31, 1, 31, 2, Q("50.3 mm")),
    Sketcher.Constraint("DistanceY", 30, 2, 30, 1, Q("45.5 mm")),
    Sketcher.Constraint("DistanceY", -1, 1, 28, 3, Q("51 mm")),
    Sketcher.Constraint("DistanceY", -1, 1, 70, 3, Q("16 mm")),
    Sketcher.Constraint("DistanceX", 37, 1, -1, 1, Q("1.5 mm")),
    Sketcher.Constraint("DistanceY", -1, 1, 38, 2, Q("49.5 mm")),
    Sketcher.Constraint("Distance", 34, Q("0.396 mm")),
    Sketcher.Constraint("DistanceX", 29, 2, 29, 1, Q("0.2246 mm")),
    Sketcher.Constraint("DistanceY", 35, 2, 35, 1, Q("0.5052 mm")),
    Sketcher.Constraint("DistanceY", 62, 1, 62, 2, Q("2.4346 mm")),
    Sketcher.Constraint("DistanceY", -1, 1, 59, 2, Q("3.403 mm")),
    Sketcher.Constraint("Distance", 60, Q("48.6258 mm")),
    Sketcher.Constraint("DistanceX", 28, 3, -1, 1, Q("57.6096 mm")),
])
pad1 = body.newObject("PartDesign::Pad", "Pad")
pad1.Profile = sketch1
pad1.Length = 3
pad1.Reversed = True

doc.recompute()
